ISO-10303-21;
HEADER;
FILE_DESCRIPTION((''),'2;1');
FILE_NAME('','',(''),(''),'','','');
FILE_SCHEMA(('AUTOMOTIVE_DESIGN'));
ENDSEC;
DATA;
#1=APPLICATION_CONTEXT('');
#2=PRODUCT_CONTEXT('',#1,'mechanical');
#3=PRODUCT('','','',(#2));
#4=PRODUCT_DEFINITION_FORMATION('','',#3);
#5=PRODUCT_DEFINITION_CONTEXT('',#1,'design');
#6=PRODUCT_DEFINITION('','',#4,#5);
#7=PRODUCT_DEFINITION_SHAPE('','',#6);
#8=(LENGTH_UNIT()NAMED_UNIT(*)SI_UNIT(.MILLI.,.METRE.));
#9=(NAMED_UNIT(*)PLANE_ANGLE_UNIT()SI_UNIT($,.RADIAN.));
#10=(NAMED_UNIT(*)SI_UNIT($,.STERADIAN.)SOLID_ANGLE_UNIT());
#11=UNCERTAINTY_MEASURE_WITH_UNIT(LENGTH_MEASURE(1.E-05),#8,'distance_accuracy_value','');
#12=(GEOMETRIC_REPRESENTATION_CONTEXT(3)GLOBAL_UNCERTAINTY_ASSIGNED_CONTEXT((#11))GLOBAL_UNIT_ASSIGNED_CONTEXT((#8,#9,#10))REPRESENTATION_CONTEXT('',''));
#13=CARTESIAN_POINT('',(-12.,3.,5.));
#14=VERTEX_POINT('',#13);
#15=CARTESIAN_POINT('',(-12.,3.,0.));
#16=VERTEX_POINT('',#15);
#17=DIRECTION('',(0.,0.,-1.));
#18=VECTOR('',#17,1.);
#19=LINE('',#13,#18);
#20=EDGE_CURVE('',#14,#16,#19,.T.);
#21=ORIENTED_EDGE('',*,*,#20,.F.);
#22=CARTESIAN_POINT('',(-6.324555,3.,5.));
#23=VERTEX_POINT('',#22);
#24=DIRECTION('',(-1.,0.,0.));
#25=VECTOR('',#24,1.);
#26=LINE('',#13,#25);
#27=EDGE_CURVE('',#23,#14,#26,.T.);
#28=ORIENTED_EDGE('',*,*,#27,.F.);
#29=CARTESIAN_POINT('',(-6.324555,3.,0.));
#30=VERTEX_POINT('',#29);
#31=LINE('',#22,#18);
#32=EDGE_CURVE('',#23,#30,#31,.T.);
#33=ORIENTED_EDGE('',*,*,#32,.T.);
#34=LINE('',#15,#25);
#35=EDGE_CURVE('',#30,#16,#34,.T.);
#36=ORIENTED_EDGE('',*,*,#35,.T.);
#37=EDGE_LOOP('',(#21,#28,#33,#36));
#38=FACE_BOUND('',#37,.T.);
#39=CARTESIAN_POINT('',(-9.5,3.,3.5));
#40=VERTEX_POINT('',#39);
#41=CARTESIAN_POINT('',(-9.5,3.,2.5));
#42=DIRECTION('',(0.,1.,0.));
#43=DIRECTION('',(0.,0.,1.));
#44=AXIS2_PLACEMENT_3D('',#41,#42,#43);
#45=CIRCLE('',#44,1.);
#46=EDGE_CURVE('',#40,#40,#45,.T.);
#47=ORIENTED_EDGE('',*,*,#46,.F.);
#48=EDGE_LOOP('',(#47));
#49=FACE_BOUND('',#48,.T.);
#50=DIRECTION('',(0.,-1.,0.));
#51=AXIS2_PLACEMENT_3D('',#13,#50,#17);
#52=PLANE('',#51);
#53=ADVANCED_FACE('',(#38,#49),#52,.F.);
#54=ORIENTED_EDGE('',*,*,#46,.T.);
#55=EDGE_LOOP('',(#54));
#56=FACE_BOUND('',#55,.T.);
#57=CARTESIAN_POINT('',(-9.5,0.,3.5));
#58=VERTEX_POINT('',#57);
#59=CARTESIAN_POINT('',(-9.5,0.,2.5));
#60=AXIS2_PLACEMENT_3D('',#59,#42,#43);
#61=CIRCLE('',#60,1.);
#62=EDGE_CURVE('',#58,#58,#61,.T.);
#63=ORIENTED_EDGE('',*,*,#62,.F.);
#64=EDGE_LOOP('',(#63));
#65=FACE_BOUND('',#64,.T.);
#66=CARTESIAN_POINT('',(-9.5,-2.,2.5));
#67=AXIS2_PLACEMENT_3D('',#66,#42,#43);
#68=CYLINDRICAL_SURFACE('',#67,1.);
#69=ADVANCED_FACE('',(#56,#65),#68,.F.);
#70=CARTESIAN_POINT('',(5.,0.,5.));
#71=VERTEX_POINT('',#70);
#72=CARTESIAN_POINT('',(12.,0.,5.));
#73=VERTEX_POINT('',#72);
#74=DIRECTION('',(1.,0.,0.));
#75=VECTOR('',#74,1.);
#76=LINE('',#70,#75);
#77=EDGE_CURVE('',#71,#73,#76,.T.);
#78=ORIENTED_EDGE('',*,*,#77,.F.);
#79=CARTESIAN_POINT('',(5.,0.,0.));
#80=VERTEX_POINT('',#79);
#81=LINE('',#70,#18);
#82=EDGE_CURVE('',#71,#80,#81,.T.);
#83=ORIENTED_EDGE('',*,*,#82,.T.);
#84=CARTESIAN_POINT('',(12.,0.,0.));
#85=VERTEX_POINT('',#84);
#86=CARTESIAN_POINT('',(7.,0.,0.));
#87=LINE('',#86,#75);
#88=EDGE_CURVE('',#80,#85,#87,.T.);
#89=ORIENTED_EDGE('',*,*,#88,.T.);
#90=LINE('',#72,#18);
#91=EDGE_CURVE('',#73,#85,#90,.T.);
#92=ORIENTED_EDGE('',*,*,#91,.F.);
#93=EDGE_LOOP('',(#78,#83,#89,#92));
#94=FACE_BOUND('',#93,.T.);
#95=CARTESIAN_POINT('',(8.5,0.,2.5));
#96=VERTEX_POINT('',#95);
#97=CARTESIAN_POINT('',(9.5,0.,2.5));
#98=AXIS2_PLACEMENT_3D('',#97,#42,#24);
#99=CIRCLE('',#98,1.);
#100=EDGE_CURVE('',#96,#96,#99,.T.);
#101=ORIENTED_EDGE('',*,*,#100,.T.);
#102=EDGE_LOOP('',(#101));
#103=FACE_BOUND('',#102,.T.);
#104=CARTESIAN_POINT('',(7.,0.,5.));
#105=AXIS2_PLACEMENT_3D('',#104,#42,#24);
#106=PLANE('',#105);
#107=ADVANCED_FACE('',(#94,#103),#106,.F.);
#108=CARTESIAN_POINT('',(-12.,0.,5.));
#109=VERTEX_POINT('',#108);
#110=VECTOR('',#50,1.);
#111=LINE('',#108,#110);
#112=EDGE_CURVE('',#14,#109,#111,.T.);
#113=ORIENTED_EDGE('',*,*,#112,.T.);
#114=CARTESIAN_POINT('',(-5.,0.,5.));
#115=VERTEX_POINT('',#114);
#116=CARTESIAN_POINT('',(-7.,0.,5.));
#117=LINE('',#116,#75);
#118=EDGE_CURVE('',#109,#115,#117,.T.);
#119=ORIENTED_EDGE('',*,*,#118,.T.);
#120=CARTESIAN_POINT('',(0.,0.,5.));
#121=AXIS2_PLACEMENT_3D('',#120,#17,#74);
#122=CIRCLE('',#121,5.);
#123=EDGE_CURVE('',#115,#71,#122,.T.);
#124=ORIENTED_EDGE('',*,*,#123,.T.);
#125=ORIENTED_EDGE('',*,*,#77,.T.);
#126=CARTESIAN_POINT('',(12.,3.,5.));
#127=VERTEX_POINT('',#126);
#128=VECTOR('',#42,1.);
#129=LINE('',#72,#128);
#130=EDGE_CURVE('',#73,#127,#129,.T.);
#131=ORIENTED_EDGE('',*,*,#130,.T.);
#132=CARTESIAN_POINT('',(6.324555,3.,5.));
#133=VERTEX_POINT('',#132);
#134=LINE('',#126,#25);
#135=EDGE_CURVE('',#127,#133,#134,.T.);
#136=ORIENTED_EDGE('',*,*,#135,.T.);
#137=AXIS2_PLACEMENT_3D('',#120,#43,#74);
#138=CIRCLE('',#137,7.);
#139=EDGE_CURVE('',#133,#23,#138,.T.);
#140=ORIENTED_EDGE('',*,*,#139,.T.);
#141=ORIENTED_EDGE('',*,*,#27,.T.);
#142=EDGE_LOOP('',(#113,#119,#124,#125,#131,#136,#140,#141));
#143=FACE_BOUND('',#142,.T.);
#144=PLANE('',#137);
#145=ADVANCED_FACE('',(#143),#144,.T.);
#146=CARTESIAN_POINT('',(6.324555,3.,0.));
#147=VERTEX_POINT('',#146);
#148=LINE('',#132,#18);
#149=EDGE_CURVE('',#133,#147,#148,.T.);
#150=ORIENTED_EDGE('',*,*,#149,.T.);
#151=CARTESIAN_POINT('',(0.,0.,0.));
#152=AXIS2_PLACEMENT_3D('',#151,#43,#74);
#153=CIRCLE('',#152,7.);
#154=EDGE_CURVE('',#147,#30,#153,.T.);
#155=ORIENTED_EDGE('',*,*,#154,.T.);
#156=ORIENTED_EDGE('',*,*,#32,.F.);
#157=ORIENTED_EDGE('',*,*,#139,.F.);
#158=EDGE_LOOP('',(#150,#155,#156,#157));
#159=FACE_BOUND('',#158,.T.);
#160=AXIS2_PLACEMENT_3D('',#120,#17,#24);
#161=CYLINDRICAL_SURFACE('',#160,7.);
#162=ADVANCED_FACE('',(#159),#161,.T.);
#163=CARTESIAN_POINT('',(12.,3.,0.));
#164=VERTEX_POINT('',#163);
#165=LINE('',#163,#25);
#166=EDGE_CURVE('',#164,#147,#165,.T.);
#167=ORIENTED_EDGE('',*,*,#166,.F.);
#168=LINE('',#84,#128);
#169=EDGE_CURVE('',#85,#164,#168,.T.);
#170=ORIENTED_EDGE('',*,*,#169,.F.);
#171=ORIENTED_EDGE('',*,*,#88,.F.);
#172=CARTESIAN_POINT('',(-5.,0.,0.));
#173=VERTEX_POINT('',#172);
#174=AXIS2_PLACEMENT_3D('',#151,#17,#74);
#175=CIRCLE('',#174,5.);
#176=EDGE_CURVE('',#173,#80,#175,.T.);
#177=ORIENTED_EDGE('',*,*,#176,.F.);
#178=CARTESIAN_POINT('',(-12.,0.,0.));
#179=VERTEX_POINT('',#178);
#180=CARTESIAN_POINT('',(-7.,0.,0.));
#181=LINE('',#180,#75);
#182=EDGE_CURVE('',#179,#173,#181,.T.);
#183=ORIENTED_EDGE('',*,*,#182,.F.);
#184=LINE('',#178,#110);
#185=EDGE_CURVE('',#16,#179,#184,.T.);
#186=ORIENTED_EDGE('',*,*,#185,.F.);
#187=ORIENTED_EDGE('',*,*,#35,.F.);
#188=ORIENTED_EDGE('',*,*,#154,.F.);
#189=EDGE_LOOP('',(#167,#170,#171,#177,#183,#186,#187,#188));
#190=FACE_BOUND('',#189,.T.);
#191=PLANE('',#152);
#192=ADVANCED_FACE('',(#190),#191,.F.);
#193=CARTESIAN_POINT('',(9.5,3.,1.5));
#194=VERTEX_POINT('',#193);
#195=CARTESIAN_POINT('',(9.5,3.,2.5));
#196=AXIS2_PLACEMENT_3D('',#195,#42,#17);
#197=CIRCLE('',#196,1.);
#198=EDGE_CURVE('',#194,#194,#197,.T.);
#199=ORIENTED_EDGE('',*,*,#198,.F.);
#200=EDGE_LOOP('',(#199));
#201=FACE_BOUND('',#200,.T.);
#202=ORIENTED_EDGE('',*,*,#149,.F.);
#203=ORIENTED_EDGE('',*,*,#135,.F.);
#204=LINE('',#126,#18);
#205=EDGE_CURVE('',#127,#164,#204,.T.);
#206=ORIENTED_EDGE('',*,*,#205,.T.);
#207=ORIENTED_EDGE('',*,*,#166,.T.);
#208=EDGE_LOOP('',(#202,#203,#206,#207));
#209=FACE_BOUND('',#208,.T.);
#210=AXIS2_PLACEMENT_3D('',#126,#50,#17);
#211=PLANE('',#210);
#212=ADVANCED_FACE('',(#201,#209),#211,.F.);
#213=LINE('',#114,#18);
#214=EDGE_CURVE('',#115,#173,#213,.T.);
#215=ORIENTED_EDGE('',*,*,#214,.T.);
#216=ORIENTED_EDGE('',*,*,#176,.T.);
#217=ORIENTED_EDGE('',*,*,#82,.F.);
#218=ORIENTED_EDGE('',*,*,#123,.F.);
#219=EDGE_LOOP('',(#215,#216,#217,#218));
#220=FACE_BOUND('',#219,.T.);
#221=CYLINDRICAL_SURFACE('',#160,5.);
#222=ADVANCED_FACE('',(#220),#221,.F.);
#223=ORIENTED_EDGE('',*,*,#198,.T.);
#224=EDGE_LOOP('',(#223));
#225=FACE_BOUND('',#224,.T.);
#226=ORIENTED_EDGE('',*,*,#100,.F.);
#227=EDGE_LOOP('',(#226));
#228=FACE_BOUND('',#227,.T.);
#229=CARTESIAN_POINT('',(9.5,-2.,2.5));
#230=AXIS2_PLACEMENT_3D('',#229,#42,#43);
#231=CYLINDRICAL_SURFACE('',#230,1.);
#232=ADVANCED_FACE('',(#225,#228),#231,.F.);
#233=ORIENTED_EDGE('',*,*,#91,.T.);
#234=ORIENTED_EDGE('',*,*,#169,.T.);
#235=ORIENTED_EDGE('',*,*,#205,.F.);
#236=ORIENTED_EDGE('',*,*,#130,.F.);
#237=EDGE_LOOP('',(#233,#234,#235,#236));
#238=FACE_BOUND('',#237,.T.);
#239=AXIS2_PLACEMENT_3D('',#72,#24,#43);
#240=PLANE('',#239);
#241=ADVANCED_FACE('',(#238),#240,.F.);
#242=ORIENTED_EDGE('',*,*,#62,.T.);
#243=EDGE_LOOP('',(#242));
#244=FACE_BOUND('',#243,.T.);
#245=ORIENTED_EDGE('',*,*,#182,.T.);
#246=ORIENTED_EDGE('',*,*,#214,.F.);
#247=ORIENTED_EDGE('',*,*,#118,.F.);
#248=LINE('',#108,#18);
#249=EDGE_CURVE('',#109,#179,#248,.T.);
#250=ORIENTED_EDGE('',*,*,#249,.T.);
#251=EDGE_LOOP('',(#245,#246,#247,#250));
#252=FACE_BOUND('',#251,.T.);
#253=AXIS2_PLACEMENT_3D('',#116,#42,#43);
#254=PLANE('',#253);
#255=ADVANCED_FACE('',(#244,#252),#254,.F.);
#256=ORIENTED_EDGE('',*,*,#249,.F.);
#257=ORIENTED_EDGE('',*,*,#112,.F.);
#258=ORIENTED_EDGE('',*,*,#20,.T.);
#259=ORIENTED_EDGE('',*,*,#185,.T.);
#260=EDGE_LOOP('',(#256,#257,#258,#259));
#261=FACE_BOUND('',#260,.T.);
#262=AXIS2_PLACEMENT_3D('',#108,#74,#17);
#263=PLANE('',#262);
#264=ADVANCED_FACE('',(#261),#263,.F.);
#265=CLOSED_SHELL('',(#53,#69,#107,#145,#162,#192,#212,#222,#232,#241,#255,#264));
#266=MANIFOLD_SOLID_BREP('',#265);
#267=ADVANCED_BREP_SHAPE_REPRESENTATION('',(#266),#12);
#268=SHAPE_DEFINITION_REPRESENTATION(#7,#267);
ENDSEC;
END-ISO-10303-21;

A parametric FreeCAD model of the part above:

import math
import FreeCAD as App
import Part
import Sketcher
Q = App.Units.Quantity

doc = App.newDocument("Part")
body = doc.addObject("PartDesign::Body", "Body")

sketch1 = body.newObject("Sketcher::SketchObject", "Sketch")
sketch1.AttachmentSupport = (doc.getObject("XY_Plane"), [""])
sketch1.MapMode = "FlatFace"
sketch1.addGeometry([
    Part.ArcOfCircle(Part.Circle(App.Vector(0, 0, 0), App.Vector(0, 0, 1), 5), math.radians(0), math.radians(180)),
    Part.LineSegment(App.Vector(5, 0, 0), App.Vector(12, 0, 0)),
    Part.LineSegment(App.Vector(12, 0, 0), App.Vector(12, 3, 0)),
    Part.LineSegment(App.Vector(12, 3, 0), App.Vector(6.3, 3, 0)),
    Part.ArcOfCircle(Part.Circle(App.Vector(0, 0, 0), App.Vector(0, 0, 1), 7), math.radians(25), math.radians(155)),
    Part.LineSegment(App.Vector(-6.3, 3, 0), App.Vector(-12, 3, 0)),
    Part.LineSegment(App.Vector(-12, 3, 0), App.Vector(-12, 0, 0)),
    Part.LineSegment(App.Vector(-12, 0, 0), App.Vector(-5, 0, 0)),
], False)
sketch1.addConstraint([
    Sketcher.Constraint("Coincident", 0, 1, 1, 1),
    Sketcher.Constraint("Coincident", 1, 2, 2, 1),
    Sketcher.Constraint("Coincident", 2, 2, 3, 1),
    Sketcher.Constraint("Coincident", 3, 2, 4, 1),
    Sketcher.Constraint("Coincident", 4, 2, 5, 1),
    Sketcher.Constraint("Coincident", 5, 2, 6, 1),
    Sketcher.Constraint("Coincident", 6, 2, 7, 1),
    Sketcher.Constraint("Coincident", 7, 2, 0, 2),
    Sketcher.Constraint("Horizontal", 1),
    Sketcher.Constraint("Vertical", 2),
    Sketcher.Constraint("Horizontal", 3),
    Sketcher.Constraint("Horizontal", 5),
    Sketcher.Constraint("Vertical", 6),
    Sketcher.Constraint("Horizontal", 7),
    Sketcher.Constraint("Coincident", 0, 3, -1, 1),
    Sketcher.Constraint("Coincident", 4, 3, -1, 1),
    Sketcher.Constraint("Symmetric", 1, 2, 6, 2, -1, 1),
    Sketcher.Constraint("PointOnObject", 0, 1, -1),
    Sketcher.Constraint("Horizontal", 3, 2, 4, 2),
    Sketcher.Constraint("Radius", 0, Q("5 mm")),
    Sketcher.Constraint("Radius", 4, Q("7 mm")),
    Sketcher.Constraint("DistanceX", 1, 1, 1, 2, Q("7 mm")),
    Sketcher.Constraint("DistanceY", 2, 1, 2, 2, Q("3 mm")),
])
pad1 = body.newObject("PartDesign::Pad", "Pad")
pad1.Profile = sketch1
pad1.Length = 5

sketch2 = body.newObject("Sketcher::SketchObject", "Sketch001")
sketch2.AttachmentSupport = (doc.getObject("XZ_Plane"), [""])
sketch2.MapMode = "FlatFace"
sketch2.AttachmentOffset = App.Placement(App.Vector(0, 0, -3), App.Rotation())
sketch2.addGeometry([
    Part.Circle(App.Vector(-9.5, 2.5, 0), App.Vector(0, 0, 1), 1),
    Part.Circle(App.Vector(9.5, 2.5, 0), App.Vector(0, 0, 1), 1),
], False)
sketch2.addConstraint([
    Sketcher.Constraint("Equal", 0, 1),
    Sketcher.Constraint("Symmetric", 0, 3, 1, 3, -2),
    Sketcher.Constraint("Diameter", 0, Q("2 mm")),
    Sketcher.Constraint("DistanceX", 0, 3, 1, 3, Q("19 mm")),
    Sketcher.Constraint("DistanceY", -1, 1, 0, 3, Q("2.5 mm")),
])
pocket1 = body.newObject("PartDesign::Pocket", "Pocket")
pocket1.Profile = sketch2
pocket1.Length = 5
pocket1.Reversed = True

doc.recompute()
